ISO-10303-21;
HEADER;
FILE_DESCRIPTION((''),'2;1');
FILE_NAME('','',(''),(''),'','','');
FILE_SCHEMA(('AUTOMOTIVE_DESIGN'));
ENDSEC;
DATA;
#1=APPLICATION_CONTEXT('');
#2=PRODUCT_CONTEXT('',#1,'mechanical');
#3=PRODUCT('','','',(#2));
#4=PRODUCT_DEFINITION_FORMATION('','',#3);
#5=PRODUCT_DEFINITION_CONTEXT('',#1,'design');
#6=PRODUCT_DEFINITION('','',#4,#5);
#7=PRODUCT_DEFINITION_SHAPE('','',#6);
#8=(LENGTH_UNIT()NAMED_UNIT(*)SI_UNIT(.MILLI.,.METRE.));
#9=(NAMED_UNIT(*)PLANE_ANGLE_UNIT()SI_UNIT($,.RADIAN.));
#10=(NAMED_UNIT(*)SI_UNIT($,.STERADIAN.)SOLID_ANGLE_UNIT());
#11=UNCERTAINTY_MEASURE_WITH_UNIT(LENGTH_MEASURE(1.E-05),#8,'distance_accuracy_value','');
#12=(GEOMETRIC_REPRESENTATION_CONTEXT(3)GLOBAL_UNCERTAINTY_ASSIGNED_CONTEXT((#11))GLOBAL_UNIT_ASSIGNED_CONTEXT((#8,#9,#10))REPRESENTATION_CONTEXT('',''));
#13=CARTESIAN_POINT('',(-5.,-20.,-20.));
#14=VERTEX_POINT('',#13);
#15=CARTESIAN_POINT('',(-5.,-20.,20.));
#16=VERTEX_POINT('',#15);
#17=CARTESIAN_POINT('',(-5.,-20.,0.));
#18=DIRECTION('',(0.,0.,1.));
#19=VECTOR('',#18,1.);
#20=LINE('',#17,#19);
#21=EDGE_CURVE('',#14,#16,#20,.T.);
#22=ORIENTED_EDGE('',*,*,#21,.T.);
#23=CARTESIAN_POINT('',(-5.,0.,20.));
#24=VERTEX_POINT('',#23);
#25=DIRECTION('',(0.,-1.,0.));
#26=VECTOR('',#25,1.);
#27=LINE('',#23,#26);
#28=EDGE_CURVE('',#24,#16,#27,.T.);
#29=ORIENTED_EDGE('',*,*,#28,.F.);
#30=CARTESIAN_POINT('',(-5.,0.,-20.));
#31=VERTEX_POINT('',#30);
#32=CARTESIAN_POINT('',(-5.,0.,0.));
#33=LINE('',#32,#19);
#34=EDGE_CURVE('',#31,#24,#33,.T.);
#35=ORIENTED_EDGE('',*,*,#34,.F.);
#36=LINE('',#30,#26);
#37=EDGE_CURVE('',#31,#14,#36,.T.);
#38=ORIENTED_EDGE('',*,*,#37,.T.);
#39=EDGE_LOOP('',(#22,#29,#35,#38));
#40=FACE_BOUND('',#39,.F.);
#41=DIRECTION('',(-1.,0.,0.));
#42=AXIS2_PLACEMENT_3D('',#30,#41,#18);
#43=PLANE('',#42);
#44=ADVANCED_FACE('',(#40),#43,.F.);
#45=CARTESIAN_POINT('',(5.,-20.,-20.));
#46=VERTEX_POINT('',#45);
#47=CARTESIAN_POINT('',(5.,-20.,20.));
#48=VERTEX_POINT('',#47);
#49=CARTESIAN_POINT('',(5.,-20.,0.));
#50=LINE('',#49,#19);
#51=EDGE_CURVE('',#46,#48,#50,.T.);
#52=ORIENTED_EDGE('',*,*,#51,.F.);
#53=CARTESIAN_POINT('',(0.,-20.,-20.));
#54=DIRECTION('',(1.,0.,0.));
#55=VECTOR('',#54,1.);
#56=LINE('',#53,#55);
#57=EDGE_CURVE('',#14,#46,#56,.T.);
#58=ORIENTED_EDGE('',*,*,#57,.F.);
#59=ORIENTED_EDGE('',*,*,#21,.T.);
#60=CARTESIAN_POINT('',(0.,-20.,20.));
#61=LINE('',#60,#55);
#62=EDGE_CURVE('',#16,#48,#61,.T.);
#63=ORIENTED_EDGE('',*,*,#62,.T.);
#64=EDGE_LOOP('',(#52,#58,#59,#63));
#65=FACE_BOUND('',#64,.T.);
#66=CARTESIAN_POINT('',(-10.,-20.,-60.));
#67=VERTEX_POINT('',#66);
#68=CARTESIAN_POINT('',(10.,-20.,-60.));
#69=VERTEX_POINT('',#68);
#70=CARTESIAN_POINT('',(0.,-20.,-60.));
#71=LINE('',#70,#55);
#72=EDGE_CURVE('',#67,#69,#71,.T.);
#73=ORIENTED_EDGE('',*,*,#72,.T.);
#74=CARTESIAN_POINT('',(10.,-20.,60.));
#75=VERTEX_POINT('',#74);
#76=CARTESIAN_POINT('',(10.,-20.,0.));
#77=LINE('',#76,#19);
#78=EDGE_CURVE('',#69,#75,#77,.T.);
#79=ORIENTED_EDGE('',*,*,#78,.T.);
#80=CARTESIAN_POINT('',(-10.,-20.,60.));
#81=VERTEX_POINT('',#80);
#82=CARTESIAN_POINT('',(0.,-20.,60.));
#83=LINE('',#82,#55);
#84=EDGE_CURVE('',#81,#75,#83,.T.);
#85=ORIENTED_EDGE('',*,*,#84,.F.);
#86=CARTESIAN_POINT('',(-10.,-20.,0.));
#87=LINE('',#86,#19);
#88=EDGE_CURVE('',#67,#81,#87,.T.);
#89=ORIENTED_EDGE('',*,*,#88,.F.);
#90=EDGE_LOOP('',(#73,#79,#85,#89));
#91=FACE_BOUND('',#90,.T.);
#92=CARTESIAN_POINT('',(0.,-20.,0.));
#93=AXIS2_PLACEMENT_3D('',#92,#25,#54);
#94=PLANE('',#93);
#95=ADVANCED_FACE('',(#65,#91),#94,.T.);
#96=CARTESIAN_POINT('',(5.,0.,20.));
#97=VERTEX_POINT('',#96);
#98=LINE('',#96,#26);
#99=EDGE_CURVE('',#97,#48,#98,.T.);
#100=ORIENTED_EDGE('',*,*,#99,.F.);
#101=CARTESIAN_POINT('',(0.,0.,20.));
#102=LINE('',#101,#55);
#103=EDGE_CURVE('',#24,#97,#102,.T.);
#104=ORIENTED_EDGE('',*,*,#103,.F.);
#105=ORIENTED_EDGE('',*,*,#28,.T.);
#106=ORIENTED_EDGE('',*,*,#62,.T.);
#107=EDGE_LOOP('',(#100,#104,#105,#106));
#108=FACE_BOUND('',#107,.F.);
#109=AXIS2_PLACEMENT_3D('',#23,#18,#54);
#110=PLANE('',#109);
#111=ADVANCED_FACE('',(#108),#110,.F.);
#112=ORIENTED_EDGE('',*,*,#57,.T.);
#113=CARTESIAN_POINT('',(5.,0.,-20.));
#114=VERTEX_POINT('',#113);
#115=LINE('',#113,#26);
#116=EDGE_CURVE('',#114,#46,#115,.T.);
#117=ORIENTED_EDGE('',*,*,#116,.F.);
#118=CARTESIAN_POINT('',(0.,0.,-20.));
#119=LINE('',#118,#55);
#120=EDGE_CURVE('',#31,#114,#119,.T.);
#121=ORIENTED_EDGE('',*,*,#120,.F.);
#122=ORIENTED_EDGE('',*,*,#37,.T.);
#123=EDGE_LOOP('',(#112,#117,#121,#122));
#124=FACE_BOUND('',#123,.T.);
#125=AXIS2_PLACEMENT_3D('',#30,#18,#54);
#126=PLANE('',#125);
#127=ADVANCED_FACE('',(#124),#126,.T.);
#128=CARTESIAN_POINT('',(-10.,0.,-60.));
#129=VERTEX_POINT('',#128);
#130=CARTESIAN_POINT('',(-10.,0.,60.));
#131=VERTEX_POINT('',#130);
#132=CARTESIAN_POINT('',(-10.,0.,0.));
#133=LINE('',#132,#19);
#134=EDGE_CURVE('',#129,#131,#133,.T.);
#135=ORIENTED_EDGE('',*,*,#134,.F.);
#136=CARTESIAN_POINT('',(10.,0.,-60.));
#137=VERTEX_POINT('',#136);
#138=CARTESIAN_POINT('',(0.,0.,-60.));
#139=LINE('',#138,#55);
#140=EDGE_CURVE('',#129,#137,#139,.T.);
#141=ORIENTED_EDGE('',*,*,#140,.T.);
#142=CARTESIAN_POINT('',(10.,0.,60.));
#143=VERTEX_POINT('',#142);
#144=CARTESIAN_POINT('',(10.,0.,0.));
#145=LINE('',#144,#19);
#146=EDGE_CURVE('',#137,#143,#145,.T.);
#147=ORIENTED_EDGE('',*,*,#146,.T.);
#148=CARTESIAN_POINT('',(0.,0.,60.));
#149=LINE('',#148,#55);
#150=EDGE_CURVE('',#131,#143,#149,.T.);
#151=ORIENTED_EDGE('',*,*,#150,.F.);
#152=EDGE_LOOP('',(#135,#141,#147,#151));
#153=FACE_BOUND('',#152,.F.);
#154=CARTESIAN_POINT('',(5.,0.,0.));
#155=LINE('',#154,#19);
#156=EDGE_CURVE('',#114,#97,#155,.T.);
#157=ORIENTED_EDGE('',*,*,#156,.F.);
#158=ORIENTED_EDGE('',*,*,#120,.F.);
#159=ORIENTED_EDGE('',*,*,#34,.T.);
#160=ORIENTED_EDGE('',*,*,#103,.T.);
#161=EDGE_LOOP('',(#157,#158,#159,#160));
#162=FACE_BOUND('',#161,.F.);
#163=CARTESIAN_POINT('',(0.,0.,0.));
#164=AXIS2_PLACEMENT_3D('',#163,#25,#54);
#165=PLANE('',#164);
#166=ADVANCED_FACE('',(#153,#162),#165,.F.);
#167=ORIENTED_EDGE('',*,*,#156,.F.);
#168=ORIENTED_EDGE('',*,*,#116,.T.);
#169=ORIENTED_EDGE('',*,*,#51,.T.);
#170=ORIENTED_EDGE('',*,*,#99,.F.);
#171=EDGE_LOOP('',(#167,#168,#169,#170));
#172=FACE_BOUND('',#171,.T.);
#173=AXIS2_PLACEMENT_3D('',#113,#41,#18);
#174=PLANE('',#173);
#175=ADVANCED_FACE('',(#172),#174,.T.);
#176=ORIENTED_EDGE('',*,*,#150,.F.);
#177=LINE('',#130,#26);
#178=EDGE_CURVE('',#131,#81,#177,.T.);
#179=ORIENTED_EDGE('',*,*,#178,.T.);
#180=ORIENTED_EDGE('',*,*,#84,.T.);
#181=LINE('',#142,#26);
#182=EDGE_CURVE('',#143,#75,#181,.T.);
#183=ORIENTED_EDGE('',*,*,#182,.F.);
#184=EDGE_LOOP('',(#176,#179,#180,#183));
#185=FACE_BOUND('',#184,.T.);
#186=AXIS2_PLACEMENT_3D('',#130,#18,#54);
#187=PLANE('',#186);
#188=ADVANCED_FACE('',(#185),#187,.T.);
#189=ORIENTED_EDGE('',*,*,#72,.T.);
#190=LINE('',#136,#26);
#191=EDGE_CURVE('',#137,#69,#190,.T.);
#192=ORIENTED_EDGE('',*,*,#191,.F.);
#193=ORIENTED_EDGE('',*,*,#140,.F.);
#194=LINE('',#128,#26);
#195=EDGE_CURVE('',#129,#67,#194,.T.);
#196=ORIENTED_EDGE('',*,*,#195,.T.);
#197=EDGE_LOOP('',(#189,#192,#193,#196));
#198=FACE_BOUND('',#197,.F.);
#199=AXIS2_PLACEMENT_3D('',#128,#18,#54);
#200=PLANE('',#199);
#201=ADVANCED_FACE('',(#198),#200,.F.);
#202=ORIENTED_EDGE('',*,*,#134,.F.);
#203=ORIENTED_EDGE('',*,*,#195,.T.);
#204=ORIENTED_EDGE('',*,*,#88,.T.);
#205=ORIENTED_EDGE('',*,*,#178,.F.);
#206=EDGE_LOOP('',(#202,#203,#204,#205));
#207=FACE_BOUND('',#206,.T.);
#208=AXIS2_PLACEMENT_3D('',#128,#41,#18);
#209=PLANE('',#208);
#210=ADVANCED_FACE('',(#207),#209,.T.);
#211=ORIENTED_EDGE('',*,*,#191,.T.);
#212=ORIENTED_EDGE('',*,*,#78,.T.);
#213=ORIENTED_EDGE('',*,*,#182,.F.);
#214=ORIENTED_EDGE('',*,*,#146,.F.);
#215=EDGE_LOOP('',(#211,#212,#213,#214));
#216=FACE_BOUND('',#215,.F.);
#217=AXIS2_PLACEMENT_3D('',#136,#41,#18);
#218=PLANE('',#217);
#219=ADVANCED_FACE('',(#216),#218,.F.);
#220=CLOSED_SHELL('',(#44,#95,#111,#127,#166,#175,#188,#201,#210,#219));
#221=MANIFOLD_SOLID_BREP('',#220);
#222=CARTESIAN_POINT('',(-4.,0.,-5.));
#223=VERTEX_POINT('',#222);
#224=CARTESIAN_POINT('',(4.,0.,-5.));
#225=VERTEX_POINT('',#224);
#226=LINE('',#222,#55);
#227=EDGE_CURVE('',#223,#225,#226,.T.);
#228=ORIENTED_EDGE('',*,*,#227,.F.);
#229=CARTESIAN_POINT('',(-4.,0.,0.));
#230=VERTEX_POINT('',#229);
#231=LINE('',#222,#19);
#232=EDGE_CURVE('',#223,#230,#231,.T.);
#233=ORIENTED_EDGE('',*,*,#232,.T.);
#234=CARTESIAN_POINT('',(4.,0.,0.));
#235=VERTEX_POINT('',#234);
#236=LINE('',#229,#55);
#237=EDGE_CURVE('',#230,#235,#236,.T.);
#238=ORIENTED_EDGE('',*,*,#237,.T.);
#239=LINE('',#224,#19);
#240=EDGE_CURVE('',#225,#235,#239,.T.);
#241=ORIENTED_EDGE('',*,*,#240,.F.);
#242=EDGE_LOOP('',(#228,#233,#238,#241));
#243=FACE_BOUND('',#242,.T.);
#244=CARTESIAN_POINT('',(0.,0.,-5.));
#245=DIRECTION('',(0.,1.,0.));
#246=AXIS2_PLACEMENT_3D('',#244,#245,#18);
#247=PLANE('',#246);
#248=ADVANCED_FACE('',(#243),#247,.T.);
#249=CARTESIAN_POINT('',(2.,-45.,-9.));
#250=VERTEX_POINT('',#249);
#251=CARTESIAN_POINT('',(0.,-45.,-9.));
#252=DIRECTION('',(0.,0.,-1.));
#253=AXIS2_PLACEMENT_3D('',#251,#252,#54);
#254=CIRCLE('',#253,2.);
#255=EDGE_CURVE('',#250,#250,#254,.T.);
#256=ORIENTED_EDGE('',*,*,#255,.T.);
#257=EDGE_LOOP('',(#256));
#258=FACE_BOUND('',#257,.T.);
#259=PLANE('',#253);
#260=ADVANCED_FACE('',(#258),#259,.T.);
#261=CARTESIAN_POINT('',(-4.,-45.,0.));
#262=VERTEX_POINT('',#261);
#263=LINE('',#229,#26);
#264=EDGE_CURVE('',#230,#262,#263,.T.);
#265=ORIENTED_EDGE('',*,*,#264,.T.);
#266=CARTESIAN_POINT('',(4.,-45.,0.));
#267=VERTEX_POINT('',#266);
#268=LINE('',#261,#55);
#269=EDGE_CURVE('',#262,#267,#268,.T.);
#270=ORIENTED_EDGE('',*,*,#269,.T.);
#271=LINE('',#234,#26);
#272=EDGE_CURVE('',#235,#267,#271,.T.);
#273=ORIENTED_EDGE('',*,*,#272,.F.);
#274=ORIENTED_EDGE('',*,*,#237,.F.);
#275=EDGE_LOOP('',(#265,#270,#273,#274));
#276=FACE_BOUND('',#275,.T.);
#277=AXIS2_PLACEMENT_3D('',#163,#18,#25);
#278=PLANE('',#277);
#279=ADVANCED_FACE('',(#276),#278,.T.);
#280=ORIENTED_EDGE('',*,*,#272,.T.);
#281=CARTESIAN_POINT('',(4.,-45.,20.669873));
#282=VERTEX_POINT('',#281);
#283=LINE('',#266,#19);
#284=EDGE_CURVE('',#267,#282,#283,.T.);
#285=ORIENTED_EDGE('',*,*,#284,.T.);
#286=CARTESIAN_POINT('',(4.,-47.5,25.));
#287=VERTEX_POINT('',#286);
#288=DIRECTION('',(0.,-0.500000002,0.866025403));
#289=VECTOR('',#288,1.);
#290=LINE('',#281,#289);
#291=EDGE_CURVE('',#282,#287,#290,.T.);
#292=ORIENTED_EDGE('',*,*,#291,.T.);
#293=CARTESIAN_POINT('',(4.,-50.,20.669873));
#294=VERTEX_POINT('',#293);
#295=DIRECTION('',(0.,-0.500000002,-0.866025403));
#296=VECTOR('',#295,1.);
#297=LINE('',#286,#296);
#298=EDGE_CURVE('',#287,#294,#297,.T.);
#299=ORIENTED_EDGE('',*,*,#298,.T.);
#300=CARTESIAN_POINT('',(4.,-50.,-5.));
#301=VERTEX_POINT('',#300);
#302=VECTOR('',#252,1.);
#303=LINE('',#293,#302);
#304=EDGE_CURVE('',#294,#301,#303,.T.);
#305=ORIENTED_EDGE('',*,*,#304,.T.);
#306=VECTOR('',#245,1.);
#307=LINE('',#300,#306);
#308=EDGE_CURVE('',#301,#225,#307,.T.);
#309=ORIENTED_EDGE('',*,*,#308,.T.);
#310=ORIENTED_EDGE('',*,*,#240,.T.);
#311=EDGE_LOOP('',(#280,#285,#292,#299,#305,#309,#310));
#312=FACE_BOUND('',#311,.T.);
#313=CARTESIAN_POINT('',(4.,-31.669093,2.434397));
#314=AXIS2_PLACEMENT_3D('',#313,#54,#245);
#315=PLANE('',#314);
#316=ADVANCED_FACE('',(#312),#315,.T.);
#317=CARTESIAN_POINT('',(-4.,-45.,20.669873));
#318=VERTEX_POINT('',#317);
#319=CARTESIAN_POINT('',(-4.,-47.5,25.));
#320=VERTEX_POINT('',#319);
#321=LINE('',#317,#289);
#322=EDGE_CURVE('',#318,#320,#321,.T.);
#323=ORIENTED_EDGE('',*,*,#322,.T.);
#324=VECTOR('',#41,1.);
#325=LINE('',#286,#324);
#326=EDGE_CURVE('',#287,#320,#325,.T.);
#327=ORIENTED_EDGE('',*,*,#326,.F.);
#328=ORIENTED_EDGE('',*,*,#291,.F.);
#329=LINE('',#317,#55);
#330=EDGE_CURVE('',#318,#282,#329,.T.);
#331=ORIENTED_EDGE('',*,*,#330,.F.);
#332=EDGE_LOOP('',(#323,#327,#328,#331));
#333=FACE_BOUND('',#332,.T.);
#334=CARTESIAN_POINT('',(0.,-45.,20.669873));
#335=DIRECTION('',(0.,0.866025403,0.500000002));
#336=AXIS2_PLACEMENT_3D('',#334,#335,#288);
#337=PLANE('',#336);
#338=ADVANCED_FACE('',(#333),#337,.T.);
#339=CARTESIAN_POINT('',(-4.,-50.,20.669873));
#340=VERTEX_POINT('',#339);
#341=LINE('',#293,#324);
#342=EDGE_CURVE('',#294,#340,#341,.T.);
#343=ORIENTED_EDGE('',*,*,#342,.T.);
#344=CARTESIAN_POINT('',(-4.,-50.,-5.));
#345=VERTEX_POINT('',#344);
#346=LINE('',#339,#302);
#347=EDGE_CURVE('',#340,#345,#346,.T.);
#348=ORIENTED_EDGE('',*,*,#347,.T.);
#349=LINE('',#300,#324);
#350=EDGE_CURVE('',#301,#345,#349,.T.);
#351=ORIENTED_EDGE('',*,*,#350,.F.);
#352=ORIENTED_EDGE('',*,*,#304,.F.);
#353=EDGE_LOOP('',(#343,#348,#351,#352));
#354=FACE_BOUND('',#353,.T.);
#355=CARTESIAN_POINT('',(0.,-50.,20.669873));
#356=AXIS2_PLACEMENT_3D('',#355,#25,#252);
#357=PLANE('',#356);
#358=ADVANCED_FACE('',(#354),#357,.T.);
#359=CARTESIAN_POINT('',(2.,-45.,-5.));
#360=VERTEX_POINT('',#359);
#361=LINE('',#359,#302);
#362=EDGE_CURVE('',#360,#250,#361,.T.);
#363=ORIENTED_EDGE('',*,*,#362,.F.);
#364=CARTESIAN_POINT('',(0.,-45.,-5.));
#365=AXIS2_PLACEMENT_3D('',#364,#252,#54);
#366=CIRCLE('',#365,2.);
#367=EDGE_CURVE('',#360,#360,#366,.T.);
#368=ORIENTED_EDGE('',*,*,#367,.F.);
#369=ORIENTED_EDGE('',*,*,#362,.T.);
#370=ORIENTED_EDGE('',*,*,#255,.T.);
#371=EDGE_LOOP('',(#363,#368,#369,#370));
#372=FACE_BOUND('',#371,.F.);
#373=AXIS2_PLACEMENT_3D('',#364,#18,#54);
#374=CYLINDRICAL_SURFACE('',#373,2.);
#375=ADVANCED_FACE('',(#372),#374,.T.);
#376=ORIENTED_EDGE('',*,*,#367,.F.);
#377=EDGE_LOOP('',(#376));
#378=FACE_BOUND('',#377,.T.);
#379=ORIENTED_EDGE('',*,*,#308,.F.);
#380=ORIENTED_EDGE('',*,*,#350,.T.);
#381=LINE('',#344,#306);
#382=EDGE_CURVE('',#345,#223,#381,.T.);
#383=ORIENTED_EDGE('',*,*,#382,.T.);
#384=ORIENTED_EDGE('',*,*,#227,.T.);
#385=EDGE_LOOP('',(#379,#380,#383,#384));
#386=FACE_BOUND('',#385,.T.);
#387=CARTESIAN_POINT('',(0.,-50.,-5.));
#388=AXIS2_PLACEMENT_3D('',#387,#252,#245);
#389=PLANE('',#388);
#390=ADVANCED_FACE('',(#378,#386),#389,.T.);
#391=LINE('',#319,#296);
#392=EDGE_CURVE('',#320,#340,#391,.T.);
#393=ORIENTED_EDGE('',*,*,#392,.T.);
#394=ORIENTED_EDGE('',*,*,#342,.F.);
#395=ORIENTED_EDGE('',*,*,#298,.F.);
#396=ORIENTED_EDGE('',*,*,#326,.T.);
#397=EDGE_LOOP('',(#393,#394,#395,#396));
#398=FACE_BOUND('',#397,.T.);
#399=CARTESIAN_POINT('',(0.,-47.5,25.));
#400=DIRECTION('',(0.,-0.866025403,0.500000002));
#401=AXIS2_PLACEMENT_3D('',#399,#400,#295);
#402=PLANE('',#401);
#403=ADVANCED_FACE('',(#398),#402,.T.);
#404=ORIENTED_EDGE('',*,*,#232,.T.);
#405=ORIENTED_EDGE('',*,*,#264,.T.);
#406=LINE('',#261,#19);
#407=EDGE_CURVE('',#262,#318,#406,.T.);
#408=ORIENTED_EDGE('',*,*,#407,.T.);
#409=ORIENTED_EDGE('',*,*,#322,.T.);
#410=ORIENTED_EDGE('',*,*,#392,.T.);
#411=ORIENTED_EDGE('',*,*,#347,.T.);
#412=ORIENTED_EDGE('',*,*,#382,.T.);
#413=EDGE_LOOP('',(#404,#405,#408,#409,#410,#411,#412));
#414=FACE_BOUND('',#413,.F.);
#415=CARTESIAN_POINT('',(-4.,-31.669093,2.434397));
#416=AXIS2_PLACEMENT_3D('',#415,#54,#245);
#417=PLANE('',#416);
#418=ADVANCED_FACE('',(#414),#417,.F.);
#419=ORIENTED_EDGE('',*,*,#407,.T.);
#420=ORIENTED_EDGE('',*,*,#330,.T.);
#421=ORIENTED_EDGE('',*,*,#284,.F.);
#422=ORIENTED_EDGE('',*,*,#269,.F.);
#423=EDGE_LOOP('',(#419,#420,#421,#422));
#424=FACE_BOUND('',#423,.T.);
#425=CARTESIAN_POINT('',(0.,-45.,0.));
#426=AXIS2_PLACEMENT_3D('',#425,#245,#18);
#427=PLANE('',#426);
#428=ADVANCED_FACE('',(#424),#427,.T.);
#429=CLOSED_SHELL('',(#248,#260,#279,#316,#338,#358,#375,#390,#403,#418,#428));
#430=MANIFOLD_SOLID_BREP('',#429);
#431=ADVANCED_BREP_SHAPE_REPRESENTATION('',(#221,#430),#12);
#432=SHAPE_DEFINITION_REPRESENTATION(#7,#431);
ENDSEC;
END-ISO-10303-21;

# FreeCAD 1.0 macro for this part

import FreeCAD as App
import Part
import Sketcher

V = App.Vector
Q = App.Units.Quantity


def add_polygon(sketch, points):
    """Adds a closed chain of lines whose ends are joined by coincident constraints."""
    first, n = sketch.GeometryCount, len(points)
    for a, b in zip(points, points[1:] + points[:1]):
        sketch.addGeometry(Part.LineSegment(App.Vector(*a, 0), App.Vector(*b, 0)), False)
    for i in range(n):
        sketch.addConstraint(Sketcher.Constraint("Coincident", first + i, 2, first + (i + 1) % n, 1))

doc = App.newDocument("Part")
body = doc.addObject("PartDesign::Body", "Body")

# Sketch on XZ plane
sketch1 = body.newObject("Sketcher::SketchObject", "Sketch")
sketch1.AttachmentSupport = (doc.getObject("XZ_Plane"), [""])
sketch1.MapMode = "FlatFace"
add_polygon(sketch1, [(-10, 60), (-10, -60), (10, -60), (10, 60)])  # lines 0-3
add_polygon(sketch1, [(5, -20), (-5, -20), (-5, 20), (5, 20)])  # lines 4-7
sketch1.addConstraint(Sketcher.Constraint("Vertical", 0))
sketch1.addConstraint(Sketcher.Constraint("Horizontal", 1))
sketch1.addConstraint(Sketcher.Constraint("Vertical", 2))
sketch1.addConstraint(Sketcher.Constraint("Horizontal", 3))
sketch1.addConstraint(Sketcher.Constraint("Horizontal", 4))
sketch1.addConstraint(Sketcher.Constraint("Vertical", 5))
sketch1.addConstraint(Sketcher.Constraint("Horizontal", 6))
sketch1.addConstraint(Sketcher.Constraint("Vertical", 7))
sketch1.addConstraint(Sketcher.Constraint("Symmetric", 0, 2, 2, 2, -1, 1))
sketch1.addConstraint(Sketcher.Constraint("Symmetric", 4, 2, 6, 2, -1, 1))
sketch1.addConstraint(Sketcher.Constraint("DistanceX", 1, 1, 1, 2, 20.0))
sketch1.addConstraint(Sketcher.Constraint("DistanceX", 4, 2, 4, 1, 10.0))
sketch1.addConstraint(Sketcher.Constraint("DistanceY", 0, 2, 0, 1, 120.0))
sketch1.addConstraint(Sketcher.Constraint("DistanceY", 5, 1, 5, 2, 40.0))
pad1 = body.newObject("PartDesign::Pad", "Pad")
pad1.Profile = sketch1
pad1.Length = 20
body2 = doc.addObject("PartDesign::Body", "Body001")

# Sketch on YZ plane
sketch2 = body2.newObject("Sketcher::SketchObject", "Sketch001")
sketch2.AttachmentSupport = (doc.getObject("YZ_Plane001"), [""])
sketch2.MapMode = "FlatFace"
add_polygon(sketch2, [(-50, -5), (0, -5), (0, 0), (-45, 0), (-45, 20.7), (-47.5, 25), (-50, 20.7)])  # lines 0-6
sketch2.addConstraint(Sketcher.Constraint("Horizontal", 0))
sketch2.addConstraint(Sketcher.Constraint("Vertical", 1))
sketch2.addConstraint(Sketcher.Constraint("Horizontal", 2))
sketch2.addConstraint(Sketcher.Constraint("Vertical", 3))
sketch2.addConstraint(Sketcher.Constraint("Vertical", 6))
sketch2.addConstraint(Sketcher.Constraint("Coincident", 1, 2, -1, 1))
sketch2.addConstraint(Sketcher.Constraint("Horizontal", 3, 2, 5, 2))
sketch2.addConstraint(Sketcher.Constraint("Equal", 4, 5))
sketch2.addConstraint(Sketcher.Constraint("DistanceX", 0, 1, 0, 2, 50.0))
sketch2.addConstraint(Sketcher.Constraint("DistanceX", 2, 2, 2, 1, 45.0))
sketch2.addConstraint(Sketcher.Constraint("DistanceY", 1, 1, 1, 2, 5.0))
sketch2.addConstraint(Sketcher.Constraint("Angle", 4, Q("120 deg")))
sketch2.addConstraint(Sketcher.Constraint("DistanceY", -1, 1, 4, 2, 25.0))
pad2 = body2.newObject("PartDesign::Pad", "Pad001")
pad2.Profile = sketch2
pad2.Length = 8
pad2.Midplane = True

# Sketch on XY plane
sketch3 = body2.newObject("Sketcher::SketchObject", "Sketch002")
sketch3.AttachmentSupport = (doc.getObject("XY_Plane001"), [""])
sketch3.MapMode = "FlatFace"
sketch3.AttachmentOffset = App.Placement(V(0, 0, -5), App.Rotation())
sketch3.addGeometry(Part.Circle(V(0, -45, 0), V(0, 0, 1), 2), False)
sketch3.addConstraint(Sketcher.Constraint("PointOnObject", 0, 3, -2))
sketch3.addConstraint(Sketcher.Constraint("Diameter", 0, 4.0))
sketch3.addConstraint(Sketcher.Constraint("DistanceY", 0, 3, -1, 1, 45.0))
pad3 = body2.newObject("PartDesign::Pad", "Pad002")
pad3.Profile = sketch3
pad3.Length = 4
pad3.Reversed = True

doc.recompute()
